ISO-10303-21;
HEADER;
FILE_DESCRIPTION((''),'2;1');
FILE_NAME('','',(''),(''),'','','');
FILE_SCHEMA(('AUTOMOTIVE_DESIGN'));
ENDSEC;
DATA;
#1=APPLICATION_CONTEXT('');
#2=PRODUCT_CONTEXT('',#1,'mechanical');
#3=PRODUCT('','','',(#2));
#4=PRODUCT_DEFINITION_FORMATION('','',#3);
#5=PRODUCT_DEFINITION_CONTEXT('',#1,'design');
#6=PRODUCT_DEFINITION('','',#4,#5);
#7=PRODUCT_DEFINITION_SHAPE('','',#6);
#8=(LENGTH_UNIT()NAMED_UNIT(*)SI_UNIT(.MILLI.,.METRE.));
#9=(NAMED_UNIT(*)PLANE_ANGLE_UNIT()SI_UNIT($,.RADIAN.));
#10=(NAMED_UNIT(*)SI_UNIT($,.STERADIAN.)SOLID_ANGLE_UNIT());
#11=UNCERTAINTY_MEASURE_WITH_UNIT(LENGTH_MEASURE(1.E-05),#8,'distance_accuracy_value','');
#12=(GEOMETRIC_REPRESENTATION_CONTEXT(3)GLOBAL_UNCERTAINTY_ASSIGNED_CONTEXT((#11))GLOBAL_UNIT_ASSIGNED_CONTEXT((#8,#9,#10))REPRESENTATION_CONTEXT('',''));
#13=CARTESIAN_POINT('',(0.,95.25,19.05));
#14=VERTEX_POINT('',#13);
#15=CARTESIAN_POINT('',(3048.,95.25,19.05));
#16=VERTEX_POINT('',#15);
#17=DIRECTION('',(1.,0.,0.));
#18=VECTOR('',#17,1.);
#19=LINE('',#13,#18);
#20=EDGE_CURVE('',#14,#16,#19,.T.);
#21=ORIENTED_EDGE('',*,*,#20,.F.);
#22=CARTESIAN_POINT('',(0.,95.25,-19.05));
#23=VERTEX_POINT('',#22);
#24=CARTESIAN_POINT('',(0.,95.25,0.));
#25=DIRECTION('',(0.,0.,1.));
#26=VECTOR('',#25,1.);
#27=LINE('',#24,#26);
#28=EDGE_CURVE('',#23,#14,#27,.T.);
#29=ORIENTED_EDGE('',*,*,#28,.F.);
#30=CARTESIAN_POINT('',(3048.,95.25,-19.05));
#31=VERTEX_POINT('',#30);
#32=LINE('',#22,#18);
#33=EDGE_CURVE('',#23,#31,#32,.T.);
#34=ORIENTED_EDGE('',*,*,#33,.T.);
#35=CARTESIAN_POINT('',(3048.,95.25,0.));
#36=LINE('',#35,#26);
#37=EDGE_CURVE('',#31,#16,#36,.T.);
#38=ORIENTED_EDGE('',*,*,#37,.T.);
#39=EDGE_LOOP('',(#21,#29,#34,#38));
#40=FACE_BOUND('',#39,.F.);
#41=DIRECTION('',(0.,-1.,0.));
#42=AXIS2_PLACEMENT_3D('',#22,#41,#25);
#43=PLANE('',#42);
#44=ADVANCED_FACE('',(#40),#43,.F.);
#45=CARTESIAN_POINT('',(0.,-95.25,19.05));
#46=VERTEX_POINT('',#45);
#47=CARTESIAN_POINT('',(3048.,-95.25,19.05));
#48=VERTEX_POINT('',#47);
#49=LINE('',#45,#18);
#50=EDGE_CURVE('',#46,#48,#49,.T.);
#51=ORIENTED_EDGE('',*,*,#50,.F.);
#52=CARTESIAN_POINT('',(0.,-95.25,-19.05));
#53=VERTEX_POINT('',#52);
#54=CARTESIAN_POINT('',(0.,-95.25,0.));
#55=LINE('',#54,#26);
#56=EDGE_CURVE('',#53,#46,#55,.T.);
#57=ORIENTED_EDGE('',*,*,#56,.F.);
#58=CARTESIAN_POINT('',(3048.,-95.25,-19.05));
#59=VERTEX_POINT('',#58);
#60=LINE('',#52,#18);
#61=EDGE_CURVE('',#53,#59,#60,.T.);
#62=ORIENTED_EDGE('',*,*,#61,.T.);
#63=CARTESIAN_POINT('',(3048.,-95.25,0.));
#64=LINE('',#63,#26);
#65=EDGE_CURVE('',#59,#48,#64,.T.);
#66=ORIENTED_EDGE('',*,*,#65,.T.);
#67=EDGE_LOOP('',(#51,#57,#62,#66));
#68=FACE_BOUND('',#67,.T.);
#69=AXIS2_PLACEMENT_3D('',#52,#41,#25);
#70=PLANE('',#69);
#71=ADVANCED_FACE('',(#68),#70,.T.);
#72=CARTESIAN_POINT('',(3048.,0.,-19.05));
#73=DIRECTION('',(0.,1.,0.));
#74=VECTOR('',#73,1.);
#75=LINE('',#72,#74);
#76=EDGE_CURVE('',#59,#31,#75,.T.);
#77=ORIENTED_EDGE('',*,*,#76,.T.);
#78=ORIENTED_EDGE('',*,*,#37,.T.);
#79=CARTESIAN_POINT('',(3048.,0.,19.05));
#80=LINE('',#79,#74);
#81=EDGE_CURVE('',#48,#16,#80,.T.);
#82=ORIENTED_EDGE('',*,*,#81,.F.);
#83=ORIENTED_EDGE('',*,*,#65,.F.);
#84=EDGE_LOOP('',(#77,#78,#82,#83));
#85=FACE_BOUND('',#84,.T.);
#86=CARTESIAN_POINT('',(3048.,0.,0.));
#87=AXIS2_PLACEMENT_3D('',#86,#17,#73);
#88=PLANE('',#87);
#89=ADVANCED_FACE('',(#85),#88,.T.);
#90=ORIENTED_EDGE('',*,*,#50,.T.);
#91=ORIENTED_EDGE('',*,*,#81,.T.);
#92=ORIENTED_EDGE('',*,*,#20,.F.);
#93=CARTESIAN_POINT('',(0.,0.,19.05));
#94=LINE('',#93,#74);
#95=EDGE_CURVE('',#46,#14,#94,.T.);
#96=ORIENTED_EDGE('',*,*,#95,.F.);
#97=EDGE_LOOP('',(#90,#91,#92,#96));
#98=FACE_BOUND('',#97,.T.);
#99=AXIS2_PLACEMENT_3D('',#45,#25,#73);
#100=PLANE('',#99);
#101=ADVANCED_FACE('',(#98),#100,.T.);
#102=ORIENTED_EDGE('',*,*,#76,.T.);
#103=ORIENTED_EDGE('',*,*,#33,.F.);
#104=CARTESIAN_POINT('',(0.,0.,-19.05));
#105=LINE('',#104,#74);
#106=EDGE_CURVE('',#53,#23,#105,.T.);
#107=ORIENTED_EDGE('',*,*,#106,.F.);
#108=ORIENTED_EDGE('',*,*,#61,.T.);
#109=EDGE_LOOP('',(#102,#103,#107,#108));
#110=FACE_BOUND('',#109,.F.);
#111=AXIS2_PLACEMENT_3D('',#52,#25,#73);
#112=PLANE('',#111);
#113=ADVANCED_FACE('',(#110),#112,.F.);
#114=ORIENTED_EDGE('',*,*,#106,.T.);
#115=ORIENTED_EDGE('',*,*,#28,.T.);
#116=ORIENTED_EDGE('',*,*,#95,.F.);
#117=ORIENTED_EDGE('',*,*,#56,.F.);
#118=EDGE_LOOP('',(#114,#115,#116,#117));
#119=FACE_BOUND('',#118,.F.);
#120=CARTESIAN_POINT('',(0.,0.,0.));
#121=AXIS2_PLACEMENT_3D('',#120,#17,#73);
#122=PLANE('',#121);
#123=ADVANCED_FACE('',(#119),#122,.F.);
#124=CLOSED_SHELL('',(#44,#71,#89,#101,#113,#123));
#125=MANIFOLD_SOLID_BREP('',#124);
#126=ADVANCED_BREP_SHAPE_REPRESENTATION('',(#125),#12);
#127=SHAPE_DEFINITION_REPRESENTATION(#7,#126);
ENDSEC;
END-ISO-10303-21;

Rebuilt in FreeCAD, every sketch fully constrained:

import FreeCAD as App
import Part
import Sketcher
Q = App.Units.Quantity


def add_polygon(sketch, points):
    """Adds a closed chain of lines whose ends are joined by coincident constraints."""
    first, n = sketch.GeometryCount, len(points)
    for a, b in zip(points, points[1:] + points[:1]):
        sketch.addGeometry(Part.LineSegment(App.Vector(*a, 0), App.Vector(*b, 0)), False)
    for i in range(n):
        sketch.addConstraint(Sketcher.Constraint("Coincident", first + i, 2, first + (i + 1) % n, 1))

doc = App.newDocument("Part")
params = doc.addObject("Spreadsheet::Sheet", "Params")
for row, (alias, value) in enumerate([
    ("sketch1_width", "7.5 in"),
    ("sketch1_height", "1.5 in"),
    ("pad1_length", "120 in"),
], start=1):
    params.set(f"A{row}", alias)
    params.set(f"B{row}", "=" + value)
    params.setAlias(f"B{row}", alias)

body = doc.addObject("PartDesign::Body", "Body")

sketch1 = body.newObject("Sketcher::SketchObject", "Sketch")
sketch1.AttachmentSupport = (doc.getObject("YZ_Plane"), [""])
sketch1.MapMode = "FlatFace"
add_polygon(sketch1, [(-95, 19), (-95, -19), (95, -19), (95, 19)])
sketch1.addConstraint([
    Sketcher.Constraint("Vertical", 0),
    Sketcher.Constraint("Horizontal", 1),
    Sketcher.Constraint("Vertical", 2),
    Sketcher.Constraint("Horizontal", 3),
    Sketcher.Constraint("Symmetric", 0, 2, 2, 2, -1, 1),
    Sketcher.Constraint("DistanceX", 1, 1, 1, 2, Q("7.5 in")),
    Sketcher.Constraint("DistanceY", 0, 2, 0, 1, Q("1.5 in")),
])
sketch1.setExpression("Constraints[9]", "Params.sketch1_width")
sketch1.setExpression("Constraints[10]", "Params.sketch1_height")
pad1 = body.newObject("PartDesign::Pad", "Pad")
pad1.Profile = sketch1
pad1.setExpression("Length", "Params.pad1_length")

doc.recompute()
